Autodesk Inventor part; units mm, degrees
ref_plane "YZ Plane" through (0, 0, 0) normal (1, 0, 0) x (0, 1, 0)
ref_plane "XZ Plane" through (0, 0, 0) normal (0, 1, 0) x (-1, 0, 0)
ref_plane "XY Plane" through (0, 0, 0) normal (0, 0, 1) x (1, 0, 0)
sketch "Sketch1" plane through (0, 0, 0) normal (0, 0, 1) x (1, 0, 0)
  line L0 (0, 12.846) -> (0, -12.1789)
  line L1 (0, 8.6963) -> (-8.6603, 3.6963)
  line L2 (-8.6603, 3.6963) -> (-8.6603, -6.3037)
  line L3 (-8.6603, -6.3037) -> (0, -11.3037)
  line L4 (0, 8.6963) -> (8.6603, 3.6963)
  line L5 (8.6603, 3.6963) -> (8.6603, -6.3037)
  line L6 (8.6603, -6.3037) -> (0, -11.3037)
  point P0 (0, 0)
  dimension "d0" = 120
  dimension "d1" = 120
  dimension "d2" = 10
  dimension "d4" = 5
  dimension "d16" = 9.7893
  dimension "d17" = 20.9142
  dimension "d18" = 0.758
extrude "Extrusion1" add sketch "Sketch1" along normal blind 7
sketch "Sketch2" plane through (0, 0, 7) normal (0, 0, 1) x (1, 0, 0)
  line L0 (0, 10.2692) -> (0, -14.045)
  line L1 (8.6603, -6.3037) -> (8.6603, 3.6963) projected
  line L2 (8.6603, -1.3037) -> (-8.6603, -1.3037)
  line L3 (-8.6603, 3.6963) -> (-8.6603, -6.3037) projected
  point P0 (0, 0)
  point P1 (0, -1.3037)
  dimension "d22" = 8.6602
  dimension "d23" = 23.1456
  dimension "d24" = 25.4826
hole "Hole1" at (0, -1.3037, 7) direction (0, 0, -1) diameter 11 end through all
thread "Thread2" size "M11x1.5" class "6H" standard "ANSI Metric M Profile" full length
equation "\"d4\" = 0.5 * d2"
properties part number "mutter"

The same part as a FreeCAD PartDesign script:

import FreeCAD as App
import Part
import Sketcher

V = App.Vector
Q = App.Units.Quantity


def add_polygon(sketch, points):
    """Adds a closed chain of lines whose ends are joined by coincident constraints."""
    first, n = sketch.GeometryCount, len(points)
    for a, b in zip(points, points[1:] + points[:1]):
        sketch.addGeometry(Part.LineSegment(App.Vector(*a, 0), App.Vector(*b, 0)), False)
    for i in range(n):
        sketch.addConstraint(Sketcher.Constraint("Coincident", first + i, 2, first + (i + 1) % n, 1))

doc = App.newDocument("Part")
body = doc.addObject("PartDesign::Body", "Body")

# Sketch on XY plane
sketch1 = body.newObject("Sketcher::SketchObject", "Sketch")
sketch1.AttachmentSupport = (doc.getObject("XY_Plane"), [""])
sketch1.MapMode = "FlatFace"
add_polygon(sketch1, [(9, 4), (0, 9), (-9, 4), (-9, -6), (0, -11), (9, -6)])  # lines 0-5
sketch1.addConstraint([
    Sketcher.Constraint("Vertical", 2),
    Sketcher.Constraint("Vertical", 5),
    Sketcher.Constraint("Symmetric", 2, 2, 4, 2, -2),
    Sketcher.Constraint("PointOnObject", 0, 2, -2),
    Sketcher.Constraint("PointOnObject", 3, 2, -2),
    Sketcher.Constraint("Parallel", 0, 3),
    Sketcher.Constraint("Parallel", 1, 4),
    Sketcher.Constraint("DistanceY", 2, 2, 2, 1, Q("10 mm")),
    Sketcher.Constraint("Distance", 0, Q("10 mm")),
    Sketcher.Constraint("DistanceY", 1, 2, 0, 2, Q("5 mm")),
    Sketcher.Constraint("DistanceY", -1, 1, 0, 2, Q("8.6963 mm")),
])
pad1 = body.newObject("PartDesign::Pad", "Pad")
pad1.Profile = sketch1
pad1.Length = 7

# Sketch on XY plane
sketch2 = body.newObject("Sketcher::SketchObject", "Sketch001")
sketch2.AttachmentSupport = (doc.getObject("XY_Plane"), [""])
sketch2.MapMode = "FlatFace"
sketch2.AttachmentOffset = App.Placement(V(0, 0, 7), App.Rotation())
sketch2.addGeometry(Part.Circle(V(0, -1, 0), V(0, 0, 1), 6), False)
sketch2.addConstraint([
    Sketcher.Constraint("PointOnObject", 0, 3, -2),
    Sketcher.Constraint("Diameter", 0, Q("11 mm")),
    Sketcher.Constraint("DistanceY", 0, 3, -1, 1, Q("1.3037 mm")),
])
doc.recompute()
hole = body.newObject("PartDesign::Hole", "Hole")
hole.Profile = sketch2
hole.ThreadType = "None"
hole.Diameter = 11
hole.DepthType = "ThroughAll"

doc.recompute()
